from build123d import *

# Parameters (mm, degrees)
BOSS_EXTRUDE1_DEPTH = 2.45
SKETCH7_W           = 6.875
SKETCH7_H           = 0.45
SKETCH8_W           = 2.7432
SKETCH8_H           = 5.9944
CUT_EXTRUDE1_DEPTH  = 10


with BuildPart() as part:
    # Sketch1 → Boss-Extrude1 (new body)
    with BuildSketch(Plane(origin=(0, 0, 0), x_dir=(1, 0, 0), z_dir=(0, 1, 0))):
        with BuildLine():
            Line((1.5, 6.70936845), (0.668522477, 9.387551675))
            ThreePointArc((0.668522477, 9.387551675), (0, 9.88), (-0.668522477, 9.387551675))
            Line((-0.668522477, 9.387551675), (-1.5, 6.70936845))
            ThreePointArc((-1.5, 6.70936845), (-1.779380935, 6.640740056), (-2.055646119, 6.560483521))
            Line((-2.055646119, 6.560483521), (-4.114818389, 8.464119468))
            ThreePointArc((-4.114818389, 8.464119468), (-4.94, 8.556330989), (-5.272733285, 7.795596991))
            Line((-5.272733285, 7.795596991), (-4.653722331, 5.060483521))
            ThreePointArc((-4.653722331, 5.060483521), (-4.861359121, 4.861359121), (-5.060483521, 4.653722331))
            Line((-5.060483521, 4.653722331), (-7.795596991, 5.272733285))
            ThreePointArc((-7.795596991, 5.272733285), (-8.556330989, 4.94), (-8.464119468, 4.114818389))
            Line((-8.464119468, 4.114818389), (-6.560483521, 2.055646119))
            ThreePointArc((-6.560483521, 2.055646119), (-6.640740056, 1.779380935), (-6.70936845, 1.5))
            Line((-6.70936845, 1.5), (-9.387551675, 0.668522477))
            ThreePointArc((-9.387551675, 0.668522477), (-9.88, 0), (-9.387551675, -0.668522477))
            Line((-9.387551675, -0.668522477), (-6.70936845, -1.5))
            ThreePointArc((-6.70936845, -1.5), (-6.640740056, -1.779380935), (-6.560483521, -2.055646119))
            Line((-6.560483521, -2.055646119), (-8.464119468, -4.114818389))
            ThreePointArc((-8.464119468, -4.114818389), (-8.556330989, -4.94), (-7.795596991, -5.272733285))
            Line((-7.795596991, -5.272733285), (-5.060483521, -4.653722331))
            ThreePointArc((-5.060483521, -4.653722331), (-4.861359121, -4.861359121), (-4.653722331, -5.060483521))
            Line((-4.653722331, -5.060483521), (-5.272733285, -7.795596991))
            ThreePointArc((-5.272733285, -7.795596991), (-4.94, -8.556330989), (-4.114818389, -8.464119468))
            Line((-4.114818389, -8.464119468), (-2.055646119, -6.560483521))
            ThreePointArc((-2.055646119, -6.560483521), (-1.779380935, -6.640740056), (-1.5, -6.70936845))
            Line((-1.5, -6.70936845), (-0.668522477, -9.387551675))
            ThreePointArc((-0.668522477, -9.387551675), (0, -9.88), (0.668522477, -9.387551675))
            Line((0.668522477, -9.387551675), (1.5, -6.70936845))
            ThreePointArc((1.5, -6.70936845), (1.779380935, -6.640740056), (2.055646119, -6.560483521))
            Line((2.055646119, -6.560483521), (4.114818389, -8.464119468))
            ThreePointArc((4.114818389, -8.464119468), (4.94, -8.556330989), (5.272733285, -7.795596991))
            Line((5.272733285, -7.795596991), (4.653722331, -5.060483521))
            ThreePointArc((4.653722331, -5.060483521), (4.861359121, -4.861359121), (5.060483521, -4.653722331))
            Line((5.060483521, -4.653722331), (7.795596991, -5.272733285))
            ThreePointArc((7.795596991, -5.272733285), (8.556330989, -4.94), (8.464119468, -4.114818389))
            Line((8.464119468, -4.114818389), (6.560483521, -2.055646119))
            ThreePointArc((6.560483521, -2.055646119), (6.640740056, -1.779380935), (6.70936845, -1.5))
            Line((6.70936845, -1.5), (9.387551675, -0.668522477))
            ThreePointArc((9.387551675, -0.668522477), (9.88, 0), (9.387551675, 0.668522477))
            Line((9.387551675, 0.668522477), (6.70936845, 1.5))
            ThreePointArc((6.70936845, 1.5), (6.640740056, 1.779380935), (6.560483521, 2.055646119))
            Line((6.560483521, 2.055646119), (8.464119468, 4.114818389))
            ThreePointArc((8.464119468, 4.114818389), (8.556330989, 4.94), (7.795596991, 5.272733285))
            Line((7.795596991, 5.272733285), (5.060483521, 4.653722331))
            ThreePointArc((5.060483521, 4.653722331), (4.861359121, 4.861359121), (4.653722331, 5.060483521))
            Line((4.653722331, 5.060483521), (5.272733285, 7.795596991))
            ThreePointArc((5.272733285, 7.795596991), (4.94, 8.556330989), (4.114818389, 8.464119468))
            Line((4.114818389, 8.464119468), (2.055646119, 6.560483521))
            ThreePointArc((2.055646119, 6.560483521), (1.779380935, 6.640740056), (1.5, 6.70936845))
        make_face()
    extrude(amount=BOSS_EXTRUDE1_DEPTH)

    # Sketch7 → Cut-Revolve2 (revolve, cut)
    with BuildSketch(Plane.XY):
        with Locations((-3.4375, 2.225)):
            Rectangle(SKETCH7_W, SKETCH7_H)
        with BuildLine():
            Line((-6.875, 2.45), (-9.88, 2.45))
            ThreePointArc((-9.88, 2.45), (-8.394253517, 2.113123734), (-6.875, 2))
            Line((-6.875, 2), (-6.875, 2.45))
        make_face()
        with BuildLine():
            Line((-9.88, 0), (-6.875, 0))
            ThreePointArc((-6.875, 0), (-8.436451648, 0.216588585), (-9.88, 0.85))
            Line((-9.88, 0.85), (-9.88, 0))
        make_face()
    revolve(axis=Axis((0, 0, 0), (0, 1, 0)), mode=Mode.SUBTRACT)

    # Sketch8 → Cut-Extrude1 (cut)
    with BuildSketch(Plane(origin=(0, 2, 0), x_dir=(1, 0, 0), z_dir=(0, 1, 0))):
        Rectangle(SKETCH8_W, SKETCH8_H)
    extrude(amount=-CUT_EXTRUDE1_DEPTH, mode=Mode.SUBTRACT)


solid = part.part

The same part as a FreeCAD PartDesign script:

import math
import FreeCAD as App
import Part
import Sketcher
from FreeCAD import Vector


def add_polygon(sketch, points):
    """Adds a closed chain of lines whose ends are joined by coincident constraints."""
    first, n = sketch.GeometryCount, len(points)
    for a, b in zip(points, points[1:] + points[:1]):
        sketch.addGeometry(Part.LineSegment(App.Vector(*a, 0), App.Vector(*b, 0)), False)
    for i in range(n):
        sketch.addConstraint(Sketcher.Constraint("Coincident", first + i, 2, first + (i + 1) % n, 1))

doc = App.newDocument("Part")
body = doc.addObject("PartDesign::Body", "Body")

# Sketch on XZ plane
sketch1 = body.newObject("Sketcher::SketchObject", "Sketch")
sketch1.AttachmentSupport = (doc.getObject("XZ_Plane"), [""])
sketch1.MapMode = "FlatFace"
sketch1.addGeometry(Part.LineSegment(Vector(1.5, -6.709368, 0), Vector(0.668522, -9.387552, 0)), False)
sketch1.addGeometry(Part.ArcOfCircle(Part.Circle(Vector(0, -9.18, 0), Vector(0, 0, 1), 0.7), math.radians(-162.752351), math.radians(-17.247649)), False)
sketch1.addGeometry(Part.LineSegment(Vector(-0.668522, -9.387552, 0), Vector(-1.5, -6.709368, 0)), False)
sketch1.addGeometry(Part.ArcOfCircle(Part.Circle(Vector(0, -0.000001, 0), Vector(0, 0, 1), 6.874999), math.radians(-107.397735), math.radians(-102.602265)), False)
sketch1.addGeometry(Part.LineSegment(Vector(-2.055646, -6.560484, 0), Vector(-4.114818, -8.464119, 0)), False)
sketch1.addGeometry(Part.ArcOfCircle(Part.Circle(Vector(-4.59, -7.950113, 0), Vector(0, 0, 1), 0.7), math.radians(167.247649), math.radians(312.752351)), False)
sketch1.addGeometry(Part.LineSegment(Vector(-5.272733, -7.795597, 0), Vector(-4.653722, -5.060484, 0)), False)
sketch1.addGeometry(Part.ArcOfCircle(Part.Circle(Vector(0, 0, 0), Vector(0, 0, 1), 6.874999), math.radians(-137.397735), math.radians(-132.602265)), False)
sketch1.addGeometry(Part.LineSegment(Vector(-5.060484, -4.653722, 0), Vector(-7.795597, -5.272733, 0)), False)
sketch1.addGeometry(Part.ArcOfCircle(Part.Circle(Vector(-7.950113, -4.59, 0), Vector(0, 0, 1), 0.7), math.radians(137.247649), math.radians(282.752351)), False)
sketch1.addGeometry(Part.LineSegment(Vector(-8.464119, -4.114818, 0), Vector(-6.560484, -2.055646, 0)), False)
sketch1.addGeometry(Part.ArcOfCircle(Part.Circle(Vector(-0.000001, 0, 0), Vector(0, 0, 1), 6.874999), math.radians(-167.397735), math.radians(-162.602265)), False)
sketch1.addGeometry(Part.LineSegment(Vector(-6.709368, -1.5, 0), Vector(-9.387552, -0.668522, 0)), False)
sketch1.addGeometry(Part.ArcOfCircle(Part.Circle(Vector(-9.18, 0, 0), Vector(0, 0, 1), 0.7), math.radians(107.247649), math.radians(252.752351)), False)
sketch1.addGeometry(Part.LineSegment(Vector(-9.387552, 0.668522, 0), Vector(-6.709368, 1.5, 0)), False)
sketch1.addGeometry(Part.ArcOfCircle(Part.Circle(Vector(-0.000001, 0, 0), Vector(0, 0, 1), 6.874999), math.radians(162.602265), math.radians(167.397735)), False)
sketch1.addGeometry(Part.LineSegment(Vector(-6.560484, 2.055646, 0), Vector(-8.464119, 4.114818, 0)), False)
sketch1.addGeometry(Part.ArcOfCircle(Part.Circle(Vector(-7.950113, 4.59, 0), Vector(0, 0, 1), 0.7), math.radians(77.247649), math.radians(222.752351)), False)
sketch1.addGeometry(Part.LineSegment(Vector(-7.795597, 5.272733, 0), Vector(-5.060484, 4.653722, 0)), False)
sketch1.addGeometry(Part.ArcOfCircle(Part.Circle(Vector(0, 0, 0), Vector(0, 0, 1), 6.874999), math.radians(132.602265), math.radians(137.397735)), False)
sketch1.addGeometry(Part.LineSegment(Vector(-4.653722, 5.060484, 0), Vector(-5.272733, 7.795597, 0)), False)
sketch1.addGeometry(Part.ArcOfCircle(Part.Circle(Vector(-4.59, 7.950113, 0), Vector(0, 0, 1), 0.7), math.radians(47.247649), math.radians(192.752351)), False)
sketch1.addGeometry(Part.LineSegment(Vector(-4.114818, 8.464119, 0), Vector(-2.055646, 6.560484, 0)), False)
sketch1.addGeometry(Part.ArcOfCircle(Part.Circle(Vector(0, 0.000001, 0), Vector(0, 0, 1), 6.874999), math.radians(102.602265), math.radians(107.397735)), False)
sketch1.addGeometry(Part.LineSegment(Vector(-1.5, 6.709368, 0), Vector(-0.668522, 9.387552, 0)), False)
sketch1.addGeometry(Part.ArcOfCircle(Part.Circle(Vector(0, 9.18, 0), Vector(0, 0, 1), 0.7), math.radians(17.247649), math.radians(162.752351)), False)
sketch1.addGeometry(Part.LineSegment(Vector(0.668522, 9.387552, 0), Vector(1.5, 6.709368, 0)), False)
sketch1.addGeometry(Part.ArcOfCircle(Part.Circle(Vector(0, 0.000001, 0), Vector(0, 0, 1), 6.874999), math.radians(72.602265), math.radians(77.397735)), False)
sketch1.addGeometry(Part.LineSegment(Vector(2.055646, 6.560484, 0), Vector(4.114818, 8.464119, 0)), False)
sketch1.addGeometry(Part.ArcOfCircle(Part.Circle(Vector(4.59, 7.950113, 0), Vector(0, 0, 1), 0.7), math.radians(-12.752351), math.radians(132.752351)), False)
sketch1.addGeometry(Part.LineSegment(Vector(5.272733, 7.795597, 0), Vector(4.653722, 5.060484, 0)), False)
sketch1.addGeometry(Part.ArcOfCircle(Part.Circle(Vector(0, 0, 0), Vector(0, 0, 1), 6.874999), math.radians(42.602265), math.radians(47.397735)), False)
sketch1.addGeometry(Part.LineSegment(Vector(5.060484, 4.653722, 0), Vector(7.795597, 5.272733, 0)), False)
sketch1.addGeometry(Part.ArcOfCircle(Part.Circle(Vector(7.950113, 4.59, 0), Vector(0, 0, 1), 0.7), math.radians(-42.752351), math.radians(102.752351)), False)
sketch1.addGeometry(Part.LineSegment(Vector(8.464119, 4.114818, 0), Vector(6.560484, 2.055646, 0)), False)
sketch1.addGeometry(Part.ArcOfCircle(Part.Circle(Vector(0.000001, 0, 0), Vector(0, 0, 1), 6.874999), math.radians(12.602265), math.radians(17.397735)), False)
sketch1.addGeometry(Part.LineSegment(Vector(6.709368, 1.5, 0), Vector(9.387552, 0.668522, 0)), False)
sketch1.addGeometry(Part.ArcOfCircle(Part.Circle(Vector(9.18, 0, 0), Vector(0, 0, 1), 0.7), math.radians(-72.752351), math.radians(72.752351)), False)
sketch1.addGeometry(Part.LineSegment(Vector(9.387552, -0.668522, 0), Vector(6.709368, -1.5, 0)), False)
sketch1.addGeometry(Part.ArcOfCircle(Part.Circle(Vector(0.000001, 0, 0), Vector(0, 0, 1), 6.874999), math.radians(-17.397735), math.radians(-12.602265)), False)
sketch1.addGeometry(Part.LineSegment(Vector(6.560484, -2.055646, 0), Vector(8.464119, -4.114818, 0)), False)
sketch1.addGeometry(Part.ArcOfCircle(Part.Circle(Vector(7.950113, -4.59, 0), Vector(0, 0, 1), 0.7), math.radians(-102.752351), math.radians(42.752351)), False)
sketch1.addGeometry(Part.LineSegment(Vector(7.795597, -5.272733, 0), Vector(5.060484, -4.653722, 0)), False)
sketch1.addGeometry(Part.ArcOfCircle(Part.Circle(Vector(0, 0, 0), Vector(0, 0, 1), 6.874999), math.radians(-47.397735), math.radians(-42.602265)), False)
sketch1.addGeometry(Part.LineSegment(Vector(4.653722, -5.060484, 0), Vector(5.272733, -7.795597, 0)), False)
sketch1.addGeometry(Part.ArcOfCircle(Part.Circle(Vector(4.59, -7.950113, 0), Vector(0, 0, 1), 0.7), math.radians(-132.752351), math.radians(12.752351)), False)
sketch1.addGeometry(Part.LineSegment(Vector(4.114818, -8.464119, 0), Vector(2.055646, -6.560484, 0)), False)
sketch1.addGeometry(Part.ArcOfCircle(Part.Circle(Vector(0, -0.000001, 0), Vector(0, 0, 1), 6.874999), math.radians(-77.397735), math.radians(-72.602265)), False)
sketch1.addConstraint(Sketcher.Constraint("Tangent", 0, 2, 1, 2))
sketch1.addConstraint(Sketcher.Constraint("Tangent", 1, 1, 2, 1))
sketch1.addConstraint(Sketcher.Constraint("Coincident", 2, 2, 3, 2))
sketch1.addConstraint(Sketcher.Constraint("Coincident", 3, 1, 4, 1))
sketch1.addConstraint(Sketcher.Constraint("Tangent", 4, 2, 5, 2))
sketch1.addConstraint(Sketcher.Constraint("Tangent", 5, 1, 6, 1))
sketch1.addConstraint(Sketcher.Constraint("Coincident", 6, 2, 7, 2))
sketch1.addConstraint(Sketcher.Constraint("Coincident", 7, 1, 8, 1))
sketch1.addConstraint(Sketcher.Constraint("Tangent", 8, 2, 9, 2))
sketch1.addConstraint(Sketcher.Constraint("Tangent", 9, 1, 10, 1))
sketch1.addConstraint(Sketcher.Constraint("Coincident", 10, 2, 11, 2))
sketch1.addConstraint(Sketcher.Constraint("Coincident", 11, 1, 12, 1))
sketch1.addConstraint(Sketcher.Constraint("Tangent", 12, 2, 13, 2))
sketch1.addConstraint(Sketcher.Constraint("Tangent", 13, 1, 14, 1))
sketch1.addConstraint(Sketcher.Constraint("Coincident", 14, 2, 15, 2))
sketch1.addConstraint(Sketcher.Constraint("Coincident", 15, 1, 16, 1))
sketch1.addConstraint(Sketcher.Constraint("Tangent", 16, 2, 17, 2))
sketch1.addConstraint(Sketcher.Constraint("Tangent", 17, 1, 18, 1))
sketch1.addConstraint(Sketcher.Constraint("Coincident", 18, 2, 19, 2))
sketch1.addConstraint(Sketcher.Constraint("Coincident", 19, 1, 20, 1))
sketch1.addConstraint(Sketcher.Constraint("Tangent", 20, 2, 21, 2))
sketch1.addConstraint(Sketcher.Constraint("Tangent", 21, 1, 22, 1))
sketch1.addConstraint(Sketcher.Constraint("Coincident", 22, 2, 23, 2))
sketch1.addConstraint(Sketcher.Constraint("Coincident", 23, 1, 24, 1))
sketch1.addConstraint(Sketcher.Constraint("Tangent", 24, 2, 25, 2))
sketch1.addConstraint(Sketcher.Constraint("Tangent", 25, 1, 26, 1))
sketch1.addConstraint(Sketcher.Constraint("Coincident", 26, 2, 27, 2))
sketch1.addConstraint(Sketcher.Constraint("Coincident", 27, 1, 28, 1))
sketch1.addConstraint(Sketcher.Constraint("Tangent", 28, 2, 29, 2))
sketch1.addConstraint(Sketcher.Constraint("Tangent", 29, 1, 30, 1))
sketch1.addConstraint(Sketcher.Constraint("Coincident", 30, 2, 31, 2))
sketch1.addConstraint(Sketcher.Constraint("Coincident", 31, 1, 32, 1))
sketch1.addConstraint(Sketcher.Constraint("Tangent", 32, 2, 33, 2))
sketch1.addConstraint(Sketcher.Constraint("Tangent", 33, 1, 34, 1))
sketch1.addConstraint(Sketcher.Constraint("Coincident", 34, 2, 35, 2))
sketch1.addConstraint(Sketcher.Constraint("Coincident", 35, 1, 36, 1))
sketch1.addConstraint(Sketcher.Constraint("Tangent", 36, 2, 37, 2))
sketch1.addConstraint(Sketcher.Constraint("Tangent", 37, 1, 38, 1))
sketch1.addConstraint(Sketcher.Constraint("Coincident", 38, 2, 39, 2))
sketch1.addConstraint(Sketcher.Constraint("Coincident", 39, 1, 40, 1))
sketch1.addConstraint(Sketcher.Constraint("Tangent", 40, 2, 41, 2))
sketch1.addConstraint(Sketcher.Constraint("Tangent", 41, 1, 42, 1))
sketch1.addConstraint(Sketcher.Constraint("Coincident", 42, 2, 43, 2))
sketch1.addConstraint(Sketcher.Constraint("Coincident", 43, 1, 44, 1))
sketch1.addConstraint(Sketcher.Constraint("Tangent", 44, 2, 45, 2))
sketch1.addConstraint(Sketcher.Constraint("Tangent", 45, 1, 46, 1))
sketch1.addConstraint(Sketcher.Constraint("Coincident", 46, 2, 47, 2))
sketch1.addConstraint(Sketcher.Constraint("Coincident", 47, 1, 0, 1))
sketch1.addConstraint(Sketcher.Constraint("Coincident", 3, 3, -1, 1))
sketch1.addConstraint(Sketcher.Constraint("Coincident", 7, 3, -1, 1))
sketch1.addConstraint(Sketcher.Constraint("Coincident", 11, 3, -1, 1))
sketch1.addConstraint(Sketcher.Constraint("Coincident", 15, 3, -1, 1))
sketch1.addConstraint(Sketcher.Constraint("Coincident", 19, 3, -1, 1))
sketch1.addConstraint(Sketcher.Constraint("Coincident", 23, 3, -1, 1))
sketch1.addConstraint(Sketcher.Constraint("Coincident", 27, 3, -1, 1))
sketch1.addConstraint(Sketcher.Constraint("Coincident", 31, 3, -1, 1))
sketch1.addConstraint(Sketcher.Constraint("Coincident", 35, 3, -1, 1))
sketch1.addConstraint(Sketcher.Constraint("Coincident", 39, 3, -1, 1))
sketch1.addConstraint(Sketcher.Constraint("Coincident", 43, 3, -1, 1))
sketch1.addConstraint(Sketcher.Constraint("Coincident", 47, 3, -1, 1))
sketch1.addConstraint(Sketcher.Constraint("Equal", 1, 5))
sketch1.addConstraint(Sketcher.Constraint("Equal", 3, 7))
sketch1.addConstraint(Sketcher.Constraint("Equal", 5, 9))
sketch1.addConstraint(Sketcher.Constraint("Equal", 7, 11))
sketch1.addConstraint(Sketcher.Constraint("Equal", 9, 13))
sketch1.addConstraint(Sketcher.Constraint("Equal", 11, 15))
sketch1.addConstraint(Sketcher.Constraint("Equal", 13, 17))
sketch1.addConstraint(Sketcher.Constraint("Equal", 15, 19))
sketch1.addConstraint(Sketcher.Constraint("Equal", 17, 21))
sketch1.addConstraint(Sketcher.Constraint("Equal", 19, 23))
sketch1.addConstraint(Sketcher.Constraint("Equal", 21, 25))
sketch1.addConstraint(Sketcher.Constraint("Equal", 23, 27))
sketch1.addConstraint(Sketcher.Constraint("Equal", 25, 29))
sketch1.addConstraint(Sketcher.Constraint("Equal", 27, 31))
sketch1.addConstraint(Sketcher.Constraint("Equal", 29, 33))
sketch1.addConstraint(Sketcher.Constraint("Equal", 31, 35))
sketch1.addConstraint(Sketcher.Constraint("Equal", 33, 37))
sketch1.addConstraint(Sketcher.Constraint("Equal", 35, 39))
sketch1.addConstraint(Sketcher.Constraint("Equal", 37, 41))
sketch1.addConstraint(Sketcher.Constraint("Equal", 39, 43))
sketch1.addConstraint(Sketcher.Constraint("Equal", 41, 45))
sketch1.addConstraint(Sketcher.Constraint("Equal", 43, 47))
sketch1.addConstraint(Sketcher.Constraint("Symmetric", 1, 3, 25, 3, -1, 1))
sketch1.addConstraint(Sketcher.Constraint("Symmetric", 5, 3, 29, 3, -1, 1))
sketch1.addConstraint(Sketcher.Constraint("Symmetric", 9, 3, 33, 3, -1, 1))
sketch1.addConstraint(Sketcher.Constraint("Symmetric", 13, 3, 37, 3, -1, 1))
sketch1.addConstraint(Sketcher.Constraint("Symmetric", 17, 3, 41, 3, -1, 1))
sketch1.addConstraint(Sketcher.Constraint("Symmetric", 21, 3, 45, 3, -1, 1))
sketch1.addConstraint(Sketcher.Constraint("Symmetric", 21, 3, 29, 3, -2))
sketch1.addConstraint(Sketcher.Constraint("Symmetric", 17, 3, 33, 3, -2))
sketch1.addConstraint(Sketcher.Constraint("Symmetric", 0, 2, 1, 1, -2))
sketch1.addConstraint(Sketcher.Constraint("Symmetric", 13, 1, 36, 2, -2))
sketch1.addConstraint(Sketcher.Constraint("Perpendicular", 0, 12))
sketch1.addConstraint(Sketcher.Constraint("Perpendicular", 2, 14))
sketch1.addConstraint(Sketcher.Constraint("Perpendicular", 4, 16))
sketch1.addConstraint(Sketcher.Constraint("Perpendicular", 6, 18))
sketch1.addConstraint(Sketcher.Constraint("Perpendicular", 8, 20))
sketch1.addConstraint(Sketcher.Constraint("Perpendicular", 10, 22))
sketch1.addConstraint(Sketcher.Constraint("Perpendicular", 12, 24))
sketch1.addConstraint(Sketcher.Constraint("Perpendicular", 14, 26))
sketch1.addConstraint(Sketcher.Constraint("Perpendicular", 16, 28))
sketch1.addConstraint(Sketcher.Constraint("Perpendicular", 18, 30))
sketch1.addConstraint(Sketcher.Constraint("Perpendicular", 20, 32))
sketch1.addConstraint(Sketcher.Constraint("Perpendicular", 22, 34))
sketch1.addConstraint(Sketcher.Constraint("Perpendicular", 26, 38))
sketch1.addConstraint(Sketcher.Constraint("Perpendicular", 28, 40))
sketch1.addConstraint(Sketcher.Constraint("Perpendicular", 30, 42))
sketch1.addConstraint(Sketcher.Constraint("Perpendicular", 32, 44))
sketch1.addConstraint(Sketcher.Constraint("Perpendicular", 34, 46))
sketch1.addConstraint(Sketcher.Constraint("Horizontal", 22, 2, 27, 1))
sketch1.addConstraint(Sketcher.Constraint("Horizontal", 20, 2, 29, 1))
sketch1.addConstraint(Sketcher.Constraint("Equal", 2, 4))
sketch1.addConstraint(Sketcher.Constraint("Equal", 4, 6))
sketch1.addConstraint(Sketcher.Constraint("Equal", 6, 8))
sketch1.addConstraint(Sketcher.Constraint("Equal", 8, 10))
sketch1.addConstraint(Sketcher.Constraint("Equal", 10, 12))
sketch1.addConstraint(Sketcher.Constraint("Radius", 1, 0.7))
sketch1.addConstraint(Sketcher.Constraint("Radius", 3, 6.874999))
sketch1.addConstraint(Sketcher.Constraint("DistanceX", 2, 2, -1, 1, 1.5))
sketch1.addConstraint(Sketcher.Constraint("DistanceY", 1, 3, -1, 1, 9.18))
sketch1.addConstraint(Sketcher.Constraint("DistanceX", 5, 3, -1, 1, 4.59))
sketch1.addConstraint(Sketcher.Constraint("DistanceX", 4, 2, -1, 1, 4.114818))
pad1 = body.newObject("PartDesign::Pad", "Pad")
pad1.Profile = sketch1
pad1.Length = 2.45
pad1.Reversed = True

# Sketch on XY plane
sketch2 = body.newObject("Sketcher::SketchObject", "Sketch001")
sketch2.AttachmentSupport = (doc.getObject("XY_Plane"), [""])
sketch2.MapMode = "FlatFace"
sketch2.addGeometry(Part.LineSegment(Vector(-6.875, 2, 0), Vector(0, 2, 0)), False)
sketch2.addGeometry(Part.LineSegment(Vector(0, 2, 0), Vector(0, 2.45, 0)), False)
sketch2.addGeometry(Part.LineSegment(Vector(0, 2.45, 0), Vector(-9.88, 2.45, 0)), False)
sketch2.addGeometry(Part.ArcOfCircle(Part.Circle(Vector(-6.875, 12.258361, 0), Vector(0, 0, 1), 10.258361), math.radians(-107.033559), math.radians(-90)), False)
sketch2.addGeometry(Part.LineSegment(Vector(-9.88, 0, 0), Vector(-6.875, 0, 0)), False)
sketch2.addGeometry(Part.ArcOfCircle(Part.Circle(Vector(-6.875, 5.736779, 0), Vector(0, 0, 1), 5.736779), math.radians(-121.588374), math.radians(-90)), False)
sketch2.addGeometry(Part.LineSegment(Vector(-9.88, 0.85, 0), Vector(-9.88, 0, 0)), False)
sketch2.addConstraint(Sketcher.Constraint("Coincident", 0, 2, 1, 1))
sketch2.addConstraint(Sketcher.Constraint("Coincident", 1, 2, 2, 1))
sketch2.addConstraint(Sketcher.Constraint("Coincident", 2, 2, 3, 1))
sketch2.addConstraint(Sketcher.Constraint("Tangent", 3, 2, 0, 1))
sketch2.addConstraint(Sketcher.Constraint("Tangent", 4, 2, 5, 2))
sketch2.addConstraint(Sketcher.Constraint("Coincident", 5, 1, 6, 1))
sketch2.addConstraint(Sketcher.Constraint("Coincident", 6, 2, 4, 1))
sketch2.addConstraint(Sketcher.Constraint("Horizontal", 0))
sketch2.addConstraint(Sketcher.Constraint("Vertical", 1))
sketch2.addConstraint(Sketcher.Constraint("Horizontal", 2))
sketch2.addConstraint(Sketcher.Constraint("Horizontal", 4))
sketch2.addConstraint(Sketcher.Constraint("Vertical", 6))
sketch2.addConstraint(Sketcher.Constraint("PointOnObject", 0, 2, -2))
sketch2.addConstraint(Sketcher.Constraint("PointOnObject", 4, 2, -1))
sketch2.addConstraint(Sketcher.Constraint("Vertical", 3, 3, 5, 3))
sketch2.addConstraint(Sketcher.Constraint("Vertical", 2, 2, 5, 1))
sketch2.addConstraint(Sketcher.Constraint("DistanceY", -1, 1, 0, 2, 2.0))
sketch2.addConstraint(Sketcher.Constraint("DistanceX", 2, 2, 2, 1, 9.88))
sketch2.addConstraint(Sketcher.Constraint("DistanceY", 1, 1, 1, 2, 0.45))
sketch2.addConstraint(Sketcher.Constraint("DistanceY", 6, 2, 6, 1, 0.85))
sketch2.addConstraint(Sketcher.Constraint("DistanceX", 0, 1, 0, 2, 6.875))
groove = body.newObject("PartDesign::Groove", "Groove")
groove.Profile = sketch2
groove.ReferenceAxis = (sketch2, ["V_Axis"])
groove.Angle = 360

# Sketch on XZ plane
sketch3 = body.newObject("Sketcher::SketchObject", "Sketch002")
sketch3.AttachmentSupport = (doc.getObject("XZ_Plane"), [""])
sketch3.MapMode = "FlatFace"
sketch3.AttachmentOffset = App.Placement(Vector(0, 0, -2), App.Rotation())
add_polygon(sketch3, [(-1.3716, -2.9972), (-1.3716, 2.9972), (1.3716, 2.9972), (1.3716, -2.9972)])  # lines 0-3
sketch3.addConstraint(Sketcher.Constraint("Vertical", 0))
sketch3.addConstraint(Sketcher.Constraint("Horizontal", 1))
sketch3.addConstraint(Sketcher.Constraint("Vertical", 2))
sketch3.addConstraint(Sketcher.Constraint("Horizontal", 3))
sketch3.addConstraint(Sketcher.Constraint("Symmetric", 0, 2, 2, 2, -1, 1))
sketch3.addConstraint(Sketcher.Constraint("DistanceX", 1, 1, 1, 2, 2.7432))
sketch3.addConstraint(Sketcher.Constraint("DistanceY", 0, 1, 0, 2, 5.9944))
pocket1 = body.newObject("PartDesign::Pocket", "Pocket")
pocket1.Profile = sketch3
pocket1.Length = 10
pocket1.Reversed = True

doc.recompute()
